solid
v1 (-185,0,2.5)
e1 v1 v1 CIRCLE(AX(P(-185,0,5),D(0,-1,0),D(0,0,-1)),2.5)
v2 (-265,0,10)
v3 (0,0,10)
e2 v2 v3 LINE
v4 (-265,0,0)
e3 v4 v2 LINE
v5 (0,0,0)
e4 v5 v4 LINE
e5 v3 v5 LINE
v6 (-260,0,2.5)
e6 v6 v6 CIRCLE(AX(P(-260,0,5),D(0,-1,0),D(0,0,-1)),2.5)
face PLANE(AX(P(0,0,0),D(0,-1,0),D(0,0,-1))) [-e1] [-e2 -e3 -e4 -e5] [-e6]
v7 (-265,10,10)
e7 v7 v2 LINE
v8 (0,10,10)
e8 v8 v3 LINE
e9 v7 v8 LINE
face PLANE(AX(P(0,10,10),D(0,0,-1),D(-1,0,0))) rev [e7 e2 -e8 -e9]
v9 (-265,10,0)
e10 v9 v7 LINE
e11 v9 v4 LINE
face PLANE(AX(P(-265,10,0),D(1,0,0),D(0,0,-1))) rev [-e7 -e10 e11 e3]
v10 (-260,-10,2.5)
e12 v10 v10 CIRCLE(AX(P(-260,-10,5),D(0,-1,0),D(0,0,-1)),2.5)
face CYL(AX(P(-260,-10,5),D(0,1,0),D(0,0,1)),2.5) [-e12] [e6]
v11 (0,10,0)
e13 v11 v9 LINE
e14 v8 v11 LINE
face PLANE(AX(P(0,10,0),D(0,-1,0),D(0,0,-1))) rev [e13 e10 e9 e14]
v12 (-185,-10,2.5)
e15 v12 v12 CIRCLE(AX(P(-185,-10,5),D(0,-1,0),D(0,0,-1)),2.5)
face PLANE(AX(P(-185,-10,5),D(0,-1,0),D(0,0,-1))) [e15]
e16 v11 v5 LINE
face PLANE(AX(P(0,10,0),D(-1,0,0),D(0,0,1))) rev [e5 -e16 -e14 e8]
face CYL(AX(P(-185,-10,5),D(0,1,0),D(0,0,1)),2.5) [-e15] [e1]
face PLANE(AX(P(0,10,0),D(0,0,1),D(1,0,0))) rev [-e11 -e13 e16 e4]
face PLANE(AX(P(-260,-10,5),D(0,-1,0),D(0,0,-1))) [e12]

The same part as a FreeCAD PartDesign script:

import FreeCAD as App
import Part
import Sketcher
from FreeCAD import Vector


def add_polygon(sketch, points):
    """Adds a closed chain of lines whose ends are joined by coincident constraints."""
    first, n = sketch.GeometryCount, len(points)
    for a, b in zip(points, points[1:] + points[:1]):
        sketch.addGeometry(Part.LineSegment(App.Vector(*a, 0), App.Vector(*b, 0)), False)
    for i in range(n):
        sketch.addConstraint(Sketcher.Constraint("Coincident", first + i, 2, first + (i + 1) % n, 1))

doc = App.newDocument("Part")
body = doc.addObject("PartDesign::Body", "Body")

# Sketch on XZ plane
sketch1 = body.newObject("Sketcher::SketchObject", "Sketch")
sketch1.AttachmentSupport = (doc.getObject("XZ_Plane"), [""])
sketch1.MapMode = "FlatFace"
add_polygon(sketch1, [(-265, 0), (-265, 10), (0, 10), (0, 0)])  # lines 0-3
sketch1.addConstraint([
    Sketcher.Constraint("Vertical", 0),
    Sketcher.Constraint("Horizontal", 1),
    Sketcher.Constraint("Vertical", 2),
    Sketcher.Constraint("Horizontal", 3),
    Sketcher.Constraint("Coincident", 2, 2, -1, 1),
    Sketcher.Constraint("DistanceX", 1, 1, 1, 2, 265.0),
    Sketcher.Constraint("DistanceY", 0, 1, 0, 2, 10.0),
])
pad1 = body.newObject("PartDesign::Pad", "Pad")
pad1.Profile = sketch1
pad1.Length = 10
pad1.Reversed = True

# Sketch on XZ plane
sketch2 = body.newObject("Sketcher::SketchObject", "Sketch001")
sketch2.AttachmentSupport = (doc.getObject("XZ_Plane"), [""])
sketch2.MapMode = "FlatFace"
sketch2.addGeometry([
    Part.Circle(Vector(-260, 5, 0), Vector(0, 0, 1), 2.5),
    Part.Circle(Vector(-185, 5, 0), Vector(0, 0, 1), 2.5),
], False)
sketch2.addConstraint([
    Sketcher.Constraint("Equal", 0, 1),
    Sketcher.Constraint("Horizontal", 0, 3, 1, 3),
    Sketcher.Constraint("Diameter", 0, 5.0),
    Sketcher.Constraint("DistanceX", 0, 3, -1, 1, 260.0),
    Sketcher.Constraint("DistanceY", -1, 1, 0, 3, 5.0),
    Sketcher.Constraint("DistanceX", 1, 3, -1, 1, 185.0),
])
pad2 = body.newObject("PartDesign::Pad", "Pad001")
pad2.Profile = sketch2
pad2.Length = 10

doc.recompute()
